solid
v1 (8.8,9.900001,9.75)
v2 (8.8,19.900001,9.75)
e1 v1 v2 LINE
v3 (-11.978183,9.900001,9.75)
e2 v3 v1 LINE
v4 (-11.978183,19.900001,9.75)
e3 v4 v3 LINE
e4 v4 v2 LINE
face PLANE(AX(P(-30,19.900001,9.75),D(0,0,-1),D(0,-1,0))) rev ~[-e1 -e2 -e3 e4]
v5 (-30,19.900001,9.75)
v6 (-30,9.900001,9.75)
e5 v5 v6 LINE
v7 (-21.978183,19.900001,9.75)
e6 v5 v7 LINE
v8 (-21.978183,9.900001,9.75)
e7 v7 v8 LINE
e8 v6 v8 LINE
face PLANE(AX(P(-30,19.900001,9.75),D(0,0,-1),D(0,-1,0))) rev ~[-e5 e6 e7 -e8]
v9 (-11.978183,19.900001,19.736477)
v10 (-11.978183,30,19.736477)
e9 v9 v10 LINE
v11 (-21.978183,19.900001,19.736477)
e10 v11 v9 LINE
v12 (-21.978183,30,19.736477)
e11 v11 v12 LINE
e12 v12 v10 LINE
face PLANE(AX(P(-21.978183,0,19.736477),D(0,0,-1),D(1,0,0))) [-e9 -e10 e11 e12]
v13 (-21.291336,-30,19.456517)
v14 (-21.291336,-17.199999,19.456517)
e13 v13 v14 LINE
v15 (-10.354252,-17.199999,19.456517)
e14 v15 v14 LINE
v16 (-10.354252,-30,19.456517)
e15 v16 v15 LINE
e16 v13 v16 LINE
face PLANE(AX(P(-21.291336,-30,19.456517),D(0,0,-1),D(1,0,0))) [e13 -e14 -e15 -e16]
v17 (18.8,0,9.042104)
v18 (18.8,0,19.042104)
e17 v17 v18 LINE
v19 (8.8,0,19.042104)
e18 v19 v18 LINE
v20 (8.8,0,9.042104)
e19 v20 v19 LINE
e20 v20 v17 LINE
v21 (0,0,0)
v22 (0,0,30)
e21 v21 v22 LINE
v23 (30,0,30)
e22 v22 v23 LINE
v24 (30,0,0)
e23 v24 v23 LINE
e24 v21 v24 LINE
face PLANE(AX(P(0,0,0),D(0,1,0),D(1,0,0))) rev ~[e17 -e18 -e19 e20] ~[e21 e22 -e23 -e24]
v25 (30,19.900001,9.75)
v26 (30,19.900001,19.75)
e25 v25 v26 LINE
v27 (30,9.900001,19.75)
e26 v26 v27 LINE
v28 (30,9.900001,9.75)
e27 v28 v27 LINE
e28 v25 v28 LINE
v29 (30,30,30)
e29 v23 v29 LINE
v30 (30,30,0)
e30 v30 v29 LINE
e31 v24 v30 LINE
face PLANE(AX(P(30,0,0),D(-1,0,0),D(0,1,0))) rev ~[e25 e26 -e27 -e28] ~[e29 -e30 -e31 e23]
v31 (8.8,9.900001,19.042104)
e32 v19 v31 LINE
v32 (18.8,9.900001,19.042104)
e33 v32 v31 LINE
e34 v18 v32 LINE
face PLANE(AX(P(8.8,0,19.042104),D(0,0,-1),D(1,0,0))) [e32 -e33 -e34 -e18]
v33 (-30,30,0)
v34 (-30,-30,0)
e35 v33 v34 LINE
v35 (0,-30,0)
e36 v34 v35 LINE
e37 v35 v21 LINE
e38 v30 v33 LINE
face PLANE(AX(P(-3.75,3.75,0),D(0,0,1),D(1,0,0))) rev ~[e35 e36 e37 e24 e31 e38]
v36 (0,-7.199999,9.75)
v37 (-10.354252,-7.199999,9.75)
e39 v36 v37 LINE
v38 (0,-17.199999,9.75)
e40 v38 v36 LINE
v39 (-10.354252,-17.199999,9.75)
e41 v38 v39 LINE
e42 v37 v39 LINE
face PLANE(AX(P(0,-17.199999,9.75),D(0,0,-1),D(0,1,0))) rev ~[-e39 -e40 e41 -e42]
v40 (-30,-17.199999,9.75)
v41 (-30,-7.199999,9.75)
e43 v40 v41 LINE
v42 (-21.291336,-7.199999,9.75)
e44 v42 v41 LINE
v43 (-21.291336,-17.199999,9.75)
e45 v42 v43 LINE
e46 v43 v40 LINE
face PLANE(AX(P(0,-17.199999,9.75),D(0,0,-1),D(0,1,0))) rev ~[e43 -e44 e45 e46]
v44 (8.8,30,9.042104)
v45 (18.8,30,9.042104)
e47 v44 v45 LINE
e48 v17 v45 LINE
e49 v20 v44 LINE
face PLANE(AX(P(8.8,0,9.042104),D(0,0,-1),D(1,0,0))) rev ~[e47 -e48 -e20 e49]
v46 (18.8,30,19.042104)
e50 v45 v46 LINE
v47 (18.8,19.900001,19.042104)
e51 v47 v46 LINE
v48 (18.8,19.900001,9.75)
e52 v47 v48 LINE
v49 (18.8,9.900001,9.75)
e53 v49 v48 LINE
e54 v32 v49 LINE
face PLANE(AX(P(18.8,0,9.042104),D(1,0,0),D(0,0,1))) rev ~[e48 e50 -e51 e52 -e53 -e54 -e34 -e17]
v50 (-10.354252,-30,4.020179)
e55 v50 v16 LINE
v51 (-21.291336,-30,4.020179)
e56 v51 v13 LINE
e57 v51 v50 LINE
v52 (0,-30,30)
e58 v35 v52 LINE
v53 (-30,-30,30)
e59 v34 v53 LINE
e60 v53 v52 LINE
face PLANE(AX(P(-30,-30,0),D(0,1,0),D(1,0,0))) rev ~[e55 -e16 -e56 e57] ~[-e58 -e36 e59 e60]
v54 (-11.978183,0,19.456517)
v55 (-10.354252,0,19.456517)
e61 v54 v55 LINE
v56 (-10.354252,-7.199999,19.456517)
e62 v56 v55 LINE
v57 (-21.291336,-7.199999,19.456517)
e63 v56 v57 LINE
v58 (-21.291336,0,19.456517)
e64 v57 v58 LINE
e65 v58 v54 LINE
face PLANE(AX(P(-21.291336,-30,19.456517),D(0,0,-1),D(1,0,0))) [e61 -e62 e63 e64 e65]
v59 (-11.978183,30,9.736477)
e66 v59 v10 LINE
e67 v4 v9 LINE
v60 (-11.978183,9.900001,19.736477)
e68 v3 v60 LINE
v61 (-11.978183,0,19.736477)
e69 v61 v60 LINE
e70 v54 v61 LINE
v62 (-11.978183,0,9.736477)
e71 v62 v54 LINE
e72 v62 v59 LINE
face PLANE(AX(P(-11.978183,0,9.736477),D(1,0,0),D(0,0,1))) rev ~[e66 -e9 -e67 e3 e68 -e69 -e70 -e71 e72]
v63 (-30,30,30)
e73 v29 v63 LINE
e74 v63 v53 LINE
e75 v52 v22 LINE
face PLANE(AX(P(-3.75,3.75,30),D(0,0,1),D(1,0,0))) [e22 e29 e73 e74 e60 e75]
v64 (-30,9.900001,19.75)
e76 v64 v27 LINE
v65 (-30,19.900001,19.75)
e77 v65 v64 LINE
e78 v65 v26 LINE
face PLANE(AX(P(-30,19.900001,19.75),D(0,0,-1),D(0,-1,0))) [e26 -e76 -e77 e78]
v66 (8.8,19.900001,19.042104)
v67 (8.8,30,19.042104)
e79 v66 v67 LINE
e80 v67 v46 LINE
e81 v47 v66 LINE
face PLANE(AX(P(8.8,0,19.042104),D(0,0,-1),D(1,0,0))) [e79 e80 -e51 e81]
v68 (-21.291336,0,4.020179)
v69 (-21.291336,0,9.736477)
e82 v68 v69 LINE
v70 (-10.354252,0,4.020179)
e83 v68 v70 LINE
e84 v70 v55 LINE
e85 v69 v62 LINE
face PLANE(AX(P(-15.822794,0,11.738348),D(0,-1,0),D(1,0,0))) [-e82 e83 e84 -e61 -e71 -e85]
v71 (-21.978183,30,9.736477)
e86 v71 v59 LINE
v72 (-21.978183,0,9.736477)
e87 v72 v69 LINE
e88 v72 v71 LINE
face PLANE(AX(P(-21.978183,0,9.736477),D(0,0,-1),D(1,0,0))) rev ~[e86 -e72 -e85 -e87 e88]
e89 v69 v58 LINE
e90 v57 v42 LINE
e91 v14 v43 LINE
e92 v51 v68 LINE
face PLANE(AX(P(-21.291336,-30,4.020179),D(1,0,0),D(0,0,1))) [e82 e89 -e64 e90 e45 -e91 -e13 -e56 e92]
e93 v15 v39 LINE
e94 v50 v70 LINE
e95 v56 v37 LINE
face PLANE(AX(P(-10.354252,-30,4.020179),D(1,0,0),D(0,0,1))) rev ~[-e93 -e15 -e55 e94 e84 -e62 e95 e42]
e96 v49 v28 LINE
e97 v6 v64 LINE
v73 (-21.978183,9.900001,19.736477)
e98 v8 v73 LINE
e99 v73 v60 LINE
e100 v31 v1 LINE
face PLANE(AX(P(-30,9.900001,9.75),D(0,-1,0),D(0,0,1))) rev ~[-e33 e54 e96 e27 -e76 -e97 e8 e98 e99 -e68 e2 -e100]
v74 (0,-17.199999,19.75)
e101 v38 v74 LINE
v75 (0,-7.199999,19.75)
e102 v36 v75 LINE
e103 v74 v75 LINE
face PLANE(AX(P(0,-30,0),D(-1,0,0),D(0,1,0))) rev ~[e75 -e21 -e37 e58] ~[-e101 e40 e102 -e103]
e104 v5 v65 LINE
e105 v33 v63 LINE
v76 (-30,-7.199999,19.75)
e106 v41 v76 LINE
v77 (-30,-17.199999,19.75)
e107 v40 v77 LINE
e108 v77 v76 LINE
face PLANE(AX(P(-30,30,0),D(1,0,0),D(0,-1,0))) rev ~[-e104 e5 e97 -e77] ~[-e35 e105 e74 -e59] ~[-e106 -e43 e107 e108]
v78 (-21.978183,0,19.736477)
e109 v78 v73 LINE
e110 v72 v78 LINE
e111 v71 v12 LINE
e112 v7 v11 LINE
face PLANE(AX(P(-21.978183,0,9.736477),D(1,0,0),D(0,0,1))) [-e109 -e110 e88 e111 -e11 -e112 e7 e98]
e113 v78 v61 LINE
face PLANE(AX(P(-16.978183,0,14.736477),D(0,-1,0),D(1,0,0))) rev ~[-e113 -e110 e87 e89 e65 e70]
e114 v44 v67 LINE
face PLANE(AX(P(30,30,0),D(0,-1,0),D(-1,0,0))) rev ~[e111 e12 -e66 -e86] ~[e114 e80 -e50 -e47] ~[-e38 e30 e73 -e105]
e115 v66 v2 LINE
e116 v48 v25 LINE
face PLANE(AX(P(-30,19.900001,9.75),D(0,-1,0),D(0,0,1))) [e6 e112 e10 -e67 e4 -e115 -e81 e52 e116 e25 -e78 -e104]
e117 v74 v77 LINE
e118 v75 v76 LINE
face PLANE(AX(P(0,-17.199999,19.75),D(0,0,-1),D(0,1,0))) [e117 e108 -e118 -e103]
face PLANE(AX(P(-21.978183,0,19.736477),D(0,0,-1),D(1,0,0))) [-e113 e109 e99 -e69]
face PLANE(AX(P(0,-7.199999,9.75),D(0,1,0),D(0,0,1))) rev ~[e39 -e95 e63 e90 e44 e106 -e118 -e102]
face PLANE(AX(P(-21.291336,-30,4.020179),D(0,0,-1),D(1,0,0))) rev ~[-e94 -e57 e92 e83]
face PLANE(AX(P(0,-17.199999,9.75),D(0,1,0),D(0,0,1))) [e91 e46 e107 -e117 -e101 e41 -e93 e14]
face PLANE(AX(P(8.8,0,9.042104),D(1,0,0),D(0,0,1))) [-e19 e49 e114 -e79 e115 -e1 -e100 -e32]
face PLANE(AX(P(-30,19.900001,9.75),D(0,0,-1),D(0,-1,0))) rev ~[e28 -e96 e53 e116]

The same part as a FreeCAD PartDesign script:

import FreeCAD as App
import Part
import Sketcher

doc = App.newDocument("Part")
body = doc.addObject("PartDesign::Body", "Body")

# Sketch on XY plane
sketch1 = body.newObject("Sketcher::SketchObject", "Sketch")
sketch1.AttachmentSupport = (doc.getObject("XY_Plane"), [""])
sketch1.MapMode = "FlatFace"
sketch1.addGeometry([
    Part.LineSegment(App.Vector(30, 30, 0), App.Vector(-30, 30, 0)),  # 0
    Part.LineSegment(App.Vector(-30, 30, 0), App.Vector(-30, -30, 0)),  # 1
    Part.LineSegment(App.Vector(-30, -30, 0), App.Vector(0, -30, 0)),  # 2
    Part.LineSegment(App.Vector(0, -30, 0), App.Vector(0, 0, 0)),  # 3
    Part.LineSegment(App.Vector(0, 0, 0), App.Vector(30, 0, 0)),  # 4
    Part.LineSegment(App.Vector(30, 0, 0), App.Vector(30, 30, 0)),  # 5
], False)
sketch1.addConstraint([
    Sketcher.Constraint("Coincident", 0, 2, 1, 1),
    Sketcher.Constraint("Coincident", 1, 2, 2, 1),
    Sketcher.Constraint("Coincident", 2, 2, 3, 1),
    Sketcher.Constraint("Coincident", 3, 2, 4, 1),
    Sketcher.Constraint("Coincident", 4, 2, 5, 1),
    Sketcher.Constraint("Coincident", 5, 2, 0, 1),
    Sketcher.Constraint("Horizontal", 0),
    Sketcher.Constraint("Vertical", 1),
    Sketcher.Constraint("Horizontal", 2),
    Sketcher.Constraint("Vertical", 3),
    Sketcher.Constraint("Horizontal", 4),
    Sketcher.Constraint("Vertical", 5),
    Sketcher.Constraint("Coincident", 3, 2, -1, 1),
    Sketcher.Constraint("Symmetric", 1, 2, 5, 2, -1, 1),
    Sketcher.Constraint("Equal", 0, 1),
    Sketcher.Constraint("DistanceX", 0, 2, 0, 1, 60.0),
])
pad1 = body.newObject("PartDesign::Pad", "Pad")
pad1.Profile = sketch1
pad1.Length = 30

# Sketch on XZ plane
sketch2 = body.newObject("Sketcher::SketchObject", "Sketch001")
sketch2.AttachmentSupport = (doc.getObject("XZ_Plane"), [""])
sketch2.MapMode = "FlatFace"
sketch2.addGeometry([
    Part.LineSegment(App.Vector(8.8, 19.042104, 0), App.Vector(8.8, 9.042104, 0)),
    Part.LineSegment(App.Vector(8.8, 9.042104, 0), App.Vector(18.8, 9.042104, 0)),
    Part.LineSegment(App.Vector(18.8, 9.042104, 0), App.Vector(18.8, 19.042104, 0)),
    Part.LineSegment(App.Vector(18.8, 19.042104, 0), App.Vector(8.8, 19.042104, 0)),
], False)
sketch2.addConstraint([
    Sketcher.Constraint("Coincident", 0, 2, 1, 1),
    Sketcher.Constraint("Coincident", 1, 2, 2, 1),
    Sketcher.Constraint("Coincident", 2, 2, 3, 1),
    Sketcher.Constraint("Coincident", 3, 2, 0, 1),
    Sketcher.Constraint("Vertical", 0),
    Sketcher.Constraint("Horizontal", 1),
    Sketcher.Constraint("Vertical", 2),
    Sketcher.Constraint("Horizontal", 3),
    Sketcher.Constraint("Equal", 3, 0),
    Sketcher.Constraint("DistanceX", 1, 1, 1, 2, 10.0),
    Sketcher.Constraint("DistanceX", -1, 1, 0, 2, 8.8),
    Sketcher.Constraint("DistanceY", -1, 1, 0, 2, 9.042104),
])
pocket1 = body.newObject("PartDesign::Pocket", "Pocket")
pocket1.Profile = sketch2
pocket1.Length = 30

# Sketch on YZ plane
sketch3 = body.newObject("Sketcher::SketchObject", "Sketch002")
sketch3.AttachmentSupport = (doc.getObject("YZ_Plane"), [""])
sketch3.MapMode = "FlatFace"
sketch3.addGeometry([
    Part.LineSegment(App.Vector(-17.199999, 19.75, 0), App.Vector(-17.199999, 9.75, 0)),
    Part.LineSegment(App.Vector(-17.199999, 9.75, 0), App.Vector(-7.199999, 9.75, 0)),
    Part.LineSegment(App.Vector(-7.199999, 9.75, 0), App.Vector(-7.199999, 19.75, 0)),
    Part.LineSegment(App.Vector(-7.199999, 19.75, 0), App.Vector(-17.199999, 19.75, 0)),
], False)
sketch3.addConstraint([
    Sketcher.Constraint("Coincident", 0, 2, 1, 1),
    Sketcher.Constraint("Coincident", 1, 2, 2, 1),
    Sketcher.Constraint("Coincident", 2, 2, 3, 1),
    Sketcher.Constraint("Coincident", 3, 2, 0, 1),
    Sketcher.Constraint("Vertical", 0),
    Sketcher.Constraint("Horizontal", 1),
    Sketcher.Constraint("Vertical", 2),
    Sketcher.Constraint("Horizontal", 3),
    Sketcher.Constraint("Equal", 3, 0),
    Sketcher.Constraint("DistanceX", 1, 1, 1, 2, 10.0),
    Sketcher.Constraint("DistanceX", 0, 2, -1, 1, 17.199999),
    Sketcher.Constraint("DistanceY", -1, 1, 0, 2, 9.75),
])
pocket2 = body.newObject("PartDesign::Pocket", "Pocket001")
pocket2.Profile = sketch3
pocket2.Length = 30

# Sketch on YZ plane
sketch4 = body.newObject("Sketcher::SketchObject", "Sketch003")
sketch4.AttachmentSupport = (doc.getObject("YZ_Plane"), [""])
sketch4.MapMode = "FlatFace"
sketch4.AttachmentOffset = App.Placement(App.Vector(0, 0, -30), App.Rotation())
sketch4.addGeometry([
    Part.LineSegment(App.Vector(19.900001, 19.75, 0), App.Vector(19.900001, 9.75, 0)),
    Part.LineSegment(App.Vector(19.900001, 9.75, 0), App.Vector(9.900001, 9.75, 0)),
    Part.LineSegment(App.Vector(9.900001, 9.75, 0), App.Vector(9.900001, 19.75, 0)),
    Part.LineSegment(App.Vector(9.900001, 19.75, 0), App.Vector(19.900001, 19.75, 0)),
], False)
sketch4.addConstraint([
    Sketcher.Constraint("Coincident", 0, 2, 1, 1),
    Sketcher.Constraint("Coincident", 1, 2, 2, 1),
    Sketcher.Constraint("Coincident", 2, 2, 3, 1),
    Sketcher.Constraint("Coincident", 3, 2, 0, 1),
    Sketcher.Constraint("Vertical", 0),
    Sketcher.Constraint("Horizontal", 1),
    Sketcher.Constraint("Vertical", 2),
    Sketcher.Constraint("Horizontal", 3),
    Sketcher.Constraint("Equal", 3, 0),
    Sketcher.Constraint("DistanceX", 1, 2, 1, 1, 10.0),
    Sketcher.Constraint("DistanceX", -1, 1, 0, 2, 19.900001),
    Sketcher.Constraint("DistanceY", -1, 1, 0, 2, 9.75),
])
pocket3 = body.newObject("PartDesign::Pocket", "Pocket002")
pocket3.Profile = sketch4
pocket3.Length = 60
pocket3.Reversed = True

# Sketch on XZ plane
sketch5 = body.newObject("Sketcher::SketchObject", "Sketch004")
sketch5.AttachmentSupport = (doc.getObject("XZ_Plane"), [""])
sketch5.MapMode = "FlatFace"
sketch5.addGeometry([
    Part.LineSegment(App.Vector(-21.978183, 19.736477, 0), App.Vector(-21.978183, 9.736477, 0)),
    Part.LineSegment(App.Vector(-21.978183, 9.736477, 0), App.Vector(-11.978183, 9.736477, 0)),
    Part.LineSegment(App.Vector(-11.978183, 9.736477, 0), App.Vector(-11.978183, 19.736477, 0)),
    Part.LineSegment(App.Vector(-11.978183, 19.736477, 0), App.Vector(-21.978183, 19.736477, 0)),
], False)
sketch5.addConstraint([
    Sketcher.Constraint("Coincident", 0, 2, 1, 1),
    Sketcher.Constraint("Coincident", 1, 2, 2, 1),
    Sketcher.Constraint("Coincident", 2, 2, 3, 1),
    Sketcher.Constraint("Coincident", 3, 2, 0, 1),
    Sketcher.Constraint("Vertical", 0),
    Sketcher.Constraint("Horizontal", 1),
    Sketcher.Constraint("Vertical", 2),
    Sketcher.Constraint("Horizontal", 3),
    Sketcher.Constraint("Equal", 3, 0),
    Sketcher.Constraint("DistanceX", 1, 1, 1, 2, 10.0),
    Sketcher.Constraint("DistanceX", 0, 2, -1, 1, 21.978183),
    Sketcher.Constraint("DistanceY", -1, 1, 0, 2, 9.736477),
])
pocket4 = body.newObject("PartDesign::Pocket", "Pocket003")
pocket4.Profile = sketch5
pocket4.Length = 60

# Sketch on XZ plane
sketch6 = body.newObject("Sketcher::SketchObject", "Sketch005")
sketch6.AttachmentSupport = (doc.getObject("XZ_Plane"), [""])
sketch6.MapMode = "FlatFace"
sketch6.AttachmentOffset = App.Placement(App.Vector(0, 0, 30), App.Rotation())
sketch6.addGeometry([
    Part.LineSegment(App.Vector(-21.291336, 19.456517, 0), App.Vector(-21.291336, 4.020179, 0)),
    Part.LineSegment(App.Vector(-21.291336, 4.020179, 0), App.Vector(-10.354252, 4.020179, 0)),
    Part.LineSegment(App.Vector(-10.354252, 4.020179, 0), App.Vector(-10.354252, 19.456517, 0)),
    Part.LineSegment(App.Vector(-10.354252, 19.456517, 0), App.Vector(-21.291336, 19.456517, 0)),
], False)
sketch6.addConstraint([
    Sketcher.Constraint("Coincident", 0, 2, 1, 1),
    Sketcher.Constraint("Coincident", 1, 2, 2, 1),
    Sketcher.Constraint("Coincident", 2, 2, 3, 1),
    Sketcher.Constraint("Coincident", 3, 2, 0, 1),
    Sketcher.Constraint("Vertical", 0),
    Sketcher.Constraint("Horizontal", 1),
    Sketcher.Constraint("Vertical", 2),
    Sketcher.Constraint("Horizontal", 3),
    Sketcher.Constraint("DistanceY", 0, 2, 0, 1, 15.436338),
    Sketcher.Constraint("DistanceX", 1, 1, 1, 2, 10.937084),
    Sketcher.Constraint("DistanceY", -1, 1, 0, 2, 4.020179),
    Sketcher.Constraint("DistanceX", 0, 2, -1, 1, 21.291336),
])
pocket5 = body.newObject("PartDesign::Pocket", "Pocket004")
pocket5.Profile = sketch6
pocket5.Length = 30
body2 = doc.addObject("PartDesign::Body", "Body001")
doc.recompute()

body2.BaseFeature = body
doc.recompute()
body.Visibility = False

doc.recompute()
